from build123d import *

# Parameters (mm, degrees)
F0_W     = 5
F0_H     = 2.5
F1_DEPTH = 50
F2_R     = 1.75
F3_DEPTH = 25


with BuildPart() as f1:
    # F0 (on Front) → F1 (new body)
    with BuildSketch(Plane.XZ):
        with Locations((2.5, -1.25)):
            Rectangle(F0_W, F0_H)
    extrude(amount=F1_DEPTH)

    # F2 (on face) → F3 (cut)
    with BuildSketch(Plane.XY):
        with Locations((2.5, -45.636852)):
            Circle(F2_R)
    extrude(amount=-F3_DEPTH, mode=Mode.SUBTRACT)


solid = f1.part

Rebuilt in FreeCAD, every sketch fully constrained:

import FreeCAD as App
import Part
import Sketcher

doc = App.newDocument("Part")
body = doc.addObject("PartDesign::Body", "Body")

# Sketch on XZ plane
sketch1 = body.newObject("Sketcher::SketchObject", "Sketch")
sketch1.AttachmentSupport = (doc.getObject("XZ_Plane"), [""])
sketch1.MapMode = "FlatFace"
sketch1.addGeometry([
    Part.LineSegment(App.Vector(0, 0, 0), App.Vector(0, -2.5, 0)),
    Part.LineSegment(App.Vector(0, -2.5, 0), App.Vector(5, -2.5, 0)),
    Part.LineSegment(App.Vector(5, -2.5, 0), App.Vector(5, 0, 0)),
    Part.LineSegment(App.Vector(5, 0, 0), App.Vector(0, 0, 0)),
], False)
sketch1.addConstraint([
    Sketcher.Constraint("Coincident", 0, 2, 1, 1),
    Sketcher.Constraint("Coincident", 1, 2, 2, 1),
    Sketcher.Constraint("Coincident", 2, 2, 3, 1),
    Sketcher.Constraint("Coincident", 3, 2, 0, 1),
    Sketcher.Constraint("Vertical", 0),
    Sketcher.Constraint("Horizontal", 1),
    Sketcher.Constraint("Vertical", 2),
    Sketcher.Constraint("Horizontal", 3),
    Sketcher.Constraint("Coincident", 3, 2, -1, 1),
    Sketcher.Constraint("DistanceX", 1, 1, 1, 2, 5.0),
    Sketcher.Constraint("DistanceY", 0, 2, 0, 1, 2.5),
])
pad1 = body.newObject("PartDesign::Pad", "Pad")
pad1.Profile = sketch1
pad1.Length = 50

# Sketch on XY plane
sketch2 = body.newObject("Sketcher::SketchObject", "Sketch001")
sketch2.AttachmentSupport = (doc.getObject("XY_Plane"), [""])
sketch2.MapMode = "FlatFace"
sketch2.addGeometry(Part.Circle(App.Vector(2.5, -45.636852, 0), App.Vector(0, 0, 1), 1.75), False)
sketch2.addConstraint([
    Sketcher.Constraint("Diameter", 0, 3.5),
    Sketcher.Constraint("DistanceX", -1, 1, 0, 3, 2.5),
    Sketcher.Constraint("DistanceY", 0, 3, -1, 1, 45.636852),
])
pocket1 = body.newObject("PartDesign::Pocket", "Pocket")
pocket1.Profile = sketch2
pocket1.Length = 25

doc.recompute()
